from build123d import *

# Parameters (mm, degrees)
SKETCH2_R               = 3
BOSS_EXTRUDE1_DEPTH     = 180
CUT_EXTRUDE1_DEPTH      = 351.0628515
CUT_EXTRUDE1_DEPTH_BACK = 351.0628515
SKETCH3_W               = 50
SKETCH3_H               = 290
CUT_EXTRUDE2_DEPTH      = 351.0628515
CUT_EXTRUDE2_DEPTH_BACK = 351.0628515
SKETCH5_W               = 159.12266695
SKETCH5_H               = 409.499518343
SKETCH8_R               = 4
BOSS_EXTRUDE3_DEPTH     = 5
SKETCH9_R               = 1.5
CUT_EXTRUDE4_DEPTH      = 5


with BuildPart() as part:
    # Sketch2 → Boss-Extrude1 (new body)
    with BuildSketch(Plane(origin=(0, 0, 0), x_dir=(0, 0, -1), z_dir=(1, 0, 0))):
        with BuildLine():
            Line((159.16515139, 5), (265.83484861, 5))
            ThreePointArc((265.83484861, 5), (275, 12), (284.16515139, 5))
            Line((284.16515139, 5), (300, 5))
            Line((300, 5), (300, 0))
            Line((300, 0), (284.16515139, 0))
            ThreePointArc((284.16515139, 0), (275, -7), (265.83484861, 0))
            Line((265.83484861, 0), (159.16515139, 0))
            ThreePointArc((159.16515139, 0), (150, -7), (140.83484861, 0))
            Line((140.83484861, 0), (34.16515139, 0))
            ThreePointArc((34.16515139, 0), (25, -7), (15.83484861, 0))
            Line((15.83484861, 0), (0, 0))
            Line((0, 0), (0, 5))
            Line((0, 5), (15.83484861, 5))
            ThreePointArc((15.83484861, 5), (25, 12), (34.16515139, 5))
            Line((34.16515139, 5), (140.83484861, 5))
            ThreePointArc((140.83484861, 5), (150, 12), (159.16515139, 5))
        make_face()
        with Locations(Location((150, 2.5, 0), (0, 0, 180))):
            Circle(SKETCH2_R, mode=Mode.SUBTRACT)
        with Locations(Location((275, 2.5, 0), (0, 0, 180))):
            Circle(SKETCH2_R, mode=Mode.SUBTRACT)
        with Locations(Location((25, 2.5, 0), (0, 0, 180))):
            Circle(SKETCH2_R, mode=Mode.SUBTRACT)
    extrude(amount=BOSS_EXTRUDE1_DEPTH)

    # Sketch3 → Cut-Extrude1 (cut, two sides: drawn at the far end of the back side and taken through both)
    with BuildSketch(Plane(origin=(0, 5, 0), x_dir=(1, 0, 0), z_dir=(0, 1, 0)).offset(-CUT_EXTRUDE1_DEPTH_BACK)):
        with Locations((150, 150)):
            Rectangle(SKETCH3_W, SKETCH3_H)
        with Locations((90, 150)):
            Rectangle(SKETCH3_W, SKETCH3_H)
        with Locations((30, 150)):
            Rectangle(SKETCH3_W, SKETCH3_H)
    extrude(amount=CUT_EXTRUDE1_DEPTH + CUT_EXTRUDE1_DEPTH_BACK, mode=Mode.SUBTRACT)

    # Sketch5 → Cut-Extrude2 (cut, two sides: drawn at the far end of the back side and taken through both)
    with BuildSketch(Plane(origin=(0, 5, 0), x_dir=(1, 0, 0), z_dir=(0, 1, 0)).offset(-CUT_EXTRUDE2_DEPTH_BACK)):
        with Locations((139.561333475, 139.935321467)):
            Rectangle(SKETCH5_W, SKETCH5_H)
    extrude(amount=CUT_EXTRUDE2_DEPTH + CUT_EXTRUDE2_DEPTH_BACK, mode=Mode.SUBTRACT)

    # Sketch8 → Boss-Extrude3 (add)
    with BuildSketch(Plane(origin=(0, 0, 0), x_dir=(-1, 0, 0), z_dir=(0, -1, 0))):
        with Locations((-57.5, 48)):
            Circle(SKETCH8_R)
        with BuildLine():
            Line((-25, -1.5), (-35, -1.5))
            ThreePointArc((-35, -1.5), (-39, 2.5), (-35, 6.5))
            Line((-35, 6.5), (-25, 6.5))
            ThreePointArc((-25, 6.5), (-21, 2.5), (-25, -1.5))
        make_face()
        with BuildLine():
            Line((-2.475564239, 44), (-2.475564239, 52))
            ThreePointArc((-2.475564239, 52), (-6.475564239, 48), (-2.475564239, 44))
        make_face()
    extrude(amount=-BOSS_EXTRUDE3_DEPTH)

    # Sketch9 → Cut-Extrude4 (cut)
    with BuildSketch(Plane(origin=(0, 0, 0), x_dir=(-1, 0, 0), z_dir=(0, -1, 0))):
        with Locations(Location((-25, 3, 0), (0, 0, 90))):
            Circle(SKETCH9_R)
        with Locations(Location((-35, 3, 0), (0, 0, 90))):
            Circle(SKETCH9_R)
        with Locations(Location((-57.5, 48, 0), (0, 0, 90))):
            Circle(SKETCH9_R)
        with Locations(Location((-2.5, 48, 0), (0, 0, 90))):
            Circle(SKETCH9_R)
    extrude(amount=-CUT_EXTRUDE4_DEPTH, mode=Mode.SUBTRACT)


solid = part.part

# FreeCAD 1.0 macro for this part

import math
import FreeCAD as App
import Part
import Sketcher
Q = App.Units.Quantity

doc = App.newDocument("Part")
params = doc.addObject("Spreadsheet::Sheet", "Params")
for row, (alias, value) in enumerate([
    ("sketch1_diameter", "6 mm"),
    ("sketch1_radius", "9.5 mm"),
    ("sketch1_width", "5 mm"),
    ("pad1_length", "180 mm"),
    ("sketch2_width", "50 mm"),
    ("sketch2_height", "290 mm"),
    ("sketch4_diameter", "8 mm"),
    ("sketch4_width", "10 mm"),
    ("pad2_length", "5 mm"),
    ("sketch5_diameter", "3 mm"),
    ("pocket3_length", "5 mm"),
], start=1):
    params.set(f"A{row}", alias)
    params.set(f"B{row}", "=" + value)
    params.setAlias(f"B{row}", alias)

body = doc.addObject("PartDesign::Body", "Body")

# Sketch on YZ plane
sketch1 = body.newObject("Sketcher::SketchObject", "Sketch")
sketch1.AttachmentSupport = (doc.getObject("YZ_Plane"), [""])
sketch1.MapMode = "FlatFace"
sketch1.addGeometry(Part.LineSegment(App.Vector(5, -265.8, 0), App.Vector(5, -159.2, 0)), False)
sketch1.addGeometry(Part.ArcOfCircle(Part.Circle(App.Vector(2.5, -150, 0), App.Vector(0, 0, 1), 9.5), math.radians(-75), math.radians(75)), False)
sketch1.addGeometry(Part.LineSegment(App.Vector(5, -140.8, 0), App.Vector(5, -34.2, 0)), False)
sketch1.addGeometry(Part.ArcOfCircle(Part.Circle(App.Vector(2.5, -25, 0), App.Vector(0, 0, 1), 9.5), math.radians(-75), math.radians(75)), False)
sketch1.addGeometry(Part.LineSegment(App.Vector(5, -15.8, 0), App.Vector(5, 0, 0)), False)
sketch1.addGeometry(Part.LineSegment(App.Vector(5, 0, 0), App.Vector(0, 0, 0)), False)
sketch1.addGeometry(Part.LineSegment(App.Vector(0, 0, 0), App.Vector(0, -15.8, 0)), False)
sketch1.addGeometry(Part.ArcOfCircle(Part.Circle(App.Vector(2.5, -25, 0), App.Vector(0, 0, 1), 9.5), math.radians(105), math.radians(255)), False)
sketch1.addGeometry(Part.LineSegment(App.Vector(0, -34.2, 0), App.Vector(0, -140.8, 0)), False)
sketch1.addGeometry(Part.ArcOfCircle(Part.Circle(App.Vector(2.5, -150, 0), App.Vector(0, 0, 1), 9.5), math.radians(105), math.radians(255)), False)
sketch1.addGeometry(Part.LineSegment(App.Vector(0, -159.2, 0), App.Vector(0, -265.8, 0)), False)
sketch1.addGeometry(Part.ArcOfCircle(Part.Circle(App.Vector(2.5, -275, 0), App.Vector(0, 0, 1), 9.5), math.radians(105), math.radians(255)), False)
sketch1.addGeometry(Part.LineSegment(App.Vector(0, -284.2, 0), App.Vector(0, -300, 0)), False)
sketch1.addGeometry(Part.LineSegment(App.Vector(0, -300, 0), App.Vector(5, -300, 0)), False)
sketch1.addGeometry(Part.LineSegment(App.Vector(5, -300, 0), App.Vector(5, -284.2, 0)), False)
sketch1.addGeometry(Part.ArcOfCircle(Part.Circle(App.Vector(2.5, -275, 0), App.Vector(0, 0, 1), 9.5), math.radians(-75), math.radians(75)), False)
sketch1.addGeometry(Part.Circle(App.Vector(2.5, -275, 0), App.Vector(0, 0, 1), 3), False)
sketch1.addGeometry(Part.Circle(App.Vector(2.5, -150, 0), App.Vector(0, 0, 1), 3), False)
sketch1.addGeometry(Part.Circle(App.Vector(2.5, -25, 0), App.Vector(0, 0, 1), 3), False)
sketch1.addConstraint(Sketcher.Constraint("Coincident", 0, 2, 1, 1))
sketch1.addConstraint(Sketcher.Constraint("Coincident", 1, 2, 2, 1))
sketch1.addConstraint(Sketcher.Constraint("Coincident", 2, 2, 3, 1))
sketch1.addConstraint(Sketcher.Constraint("Coincident", 3, 2, 4, 1))
sketch1.addConstraint(Sketcher.Constraint("Coincident", 4, 2, 5, 1))
sketch1.addConstraint(Sketcher.Constraint("Coincident", 5, 2, 6, 1))
sketch1.addConstraint(Sketcher.Constraint("Coincident", 6, 2, 7, 1))
sketch1.addConstraint(Sketcher.Constraint("Coincident", 7, 2, 8, 1))
sketch1.addConstraint(Sketcher.Constraint("Coincident", 8, 2, 9, 1))
sketch1.addConstraint(Sketcher.Constraint("Coincident", 9, 2, 10, 1))
sketch1.addConstraint(Sketcher.Constraint("Coincident", 10, 2, 11, 1))
sketch1.addConstraint(Sketcher.Constraint("Coincident", 11, 2, 12, 1))
sketch1.addConstraint(Sketcher.Constraint("Coincident", 12, 2, 13, 1))
sketch1.addConstraint(Sketcher.Constraint("Coincident", 13, 2, 14, 1))
sketch1.addConstraint(Sketcher.Constraint("Coincident", 14, 2, 15, 1))
sketch1.addConstraint(Sketcher.Constraint("Coincident", 15, 2, 0, 1))
sketch1.addConstraint(Sketcher.Constraint("Vertical", 0))
sketch1.addConstraint(Sketcher.Constraint("Vertical", 2))
sketch1.addConstraint(Sketcher.Constraint("Vertical", 4))
sketch1.addConstraint(Sketcher.Constraint("Horizontal", 5))
sketch1.addConstraint(Sketcher.Constraint("Vertical", 6))
sketch1.addConstraint(Sketcher.Constraint("Vertical", 8))
sketch1.addConstraint(Sketcher.Constraint("Vertical", 10))
sketch1.addConstraint(Sketcher.Constraint("Vertical", 12))
sketch1.addConstraint(Sketcher.Constraint("Horizontal", 13))
sketch1.addConstraint(Sketcher.Constraint("Vertical", 14))
sketch1.addConstraint(Sketcher.Constraint("Coincident", 5, 2, -1, 1))
sketch1.addConstraint(Sketcher.Constraint("Coincident", 7, 3, 3, 3))
sketch1.addConstraint(Sketcher.Constraint("Coincident", 9, 3, 1, 3))
sketch1.addConstraint(Sketcher.Constraint("Coincident", 15, 3, 11, 3))
sketch1.addConstraint(Sketcher.Constraint("Coincident", 16, 3, 11, 3))
sketch1.addConstraint(Sketcher.Constraint("Coincident", 17, 3, 1, 3))
sketch1.addConstraint(Sketcher.Constraint("Coincident", 18, 3, 3, 3))
sketch1.addConstraint(Sketcher.Constraint("Equal", 1, 3))
sketch1.addConstraint(Sketcher.Constraint("Equal", 3, 7))
sketch1.addConstraint(Sketcher.Constraint("Equal", 7, 9))
sketch1.addConstraint(Sketcher.Constraint("Equal", 9, 11))
sketch1.addConstraint(Sketcher.Constraint("Equal", 11, 15))
sketch1.addConstraint(Sketcher.Constraint("Equal", 16, 17))
sketch1.addConstraint(Sketcher.Constraint("Equal", 17, 18))
sketch1.addConstraint(Sketcher.Constraint("PointOnObject", 7, 2, -2))
sketch1.addConstraint(Sketcher.Constraint("PointOnObject", 9, 2, -2))
sketch1.addConstraint(Sketcher.Constraint("PointOnObject", 11, 2, -2))
sketch1.addConstraint(Sketcher.Constraint("Horizontal", 3, 2, 6, 2))
sketch1.addConstraint(Sketcher.Constraint("Horizontal", 2, 2, 7, 2))
sketch1.addConstraint(Sketcher.Constraint("Horizontal", 1, 2, 8, 2))
sketch1.addConstraint(Sketcher.Constraint("Horizontal", 0, 2, 9, 2))
sketch1.addConstraint(Sketcher.Constraint("Horizontal", 11, 2, 14, 2))
sketch1.addConstraint(Sketcher.Constraint("Horizontal", 10, 2, 15, 2))
sketch1.addConstraint(Sketcher.Constraint("Equal", 0, 2))
sketch1.addConstraint(Sketcher.Constraint("Equal", 6, 12))
sketch1.addConstraint(Sketcher.Constraint("Diameter", 16, Q("6 mm")))
sketch1.addConstraint(Sketcher.Constraint("Radius", 1, Q("9.5 mm")))
sketch1.addConstraint(Sketcher.Constraint("DistanceX", 5, 2, 5, 1, Q("5 mm")))
sketch1.addConstraint(Sketcher.Constraint("DistanceY", 1, 3, -1, 1, Q("150 mm")))
sketch1.addConstraint(Sketcher.Constraint("DistanceY", 3, 3, -1, 1, Q("25 mm")))
sketch1.setExpression("Constraints[51]", "Params.sketch1_diameter")
sketch1.setExpression("Constraints[52]", "Params.sketch1_radius")
sketch1.setExpression("Constraints[53]", "Params.sketch1_width")
pad1 = body.newObject("PartDesign::Pad", "Pad")
pad1.Profile = sketch1
pad1.setExpression("Length", "Params.pad1_length")

# Sketch on XZ plane
sketch2 = body.newObject("Sketcher::SketchObject", "Sketch001")
sketch2.AttachmentSupport = (doc.getObject("XZ_Plane"), [""])
sketch2.MapMode = "FlatFace"
sketch2.AttachmentOffset = App.Placement(App.Vector(0, 0, -5), App.Rotation())
sketch2.addGeometry(Part.LineSegment(App.Vector(125, -295, 0), App.Vector(125, -5, 0)), False)
sketch2.addGeometry(Part.LineSegment(App.Vector(125, -5, 0), App.Vector(175, -5, 0)), False)
sketch2.addGeometry(Part.LineSegment(App.Vector(175, -5, 0), App.Vector(175, -295, 0)), False)
sketch2.addGeometry(Part.LineSegment(App.Vector(175, -295, 0), App.Vector(125, -295, 0)), False)
sketch2.addGeometry(Part.LineSegment(App.Vector(65, -295, 0), App.Vector(65, -5, 0)), False)
sketch2.addGeometry(Part.LineSegment(App.Vector(65, -5, 0), App.Vector(115, -5, 0)), False)
sketch2.addGeometry(Part.LineSegment(App.Vector(115, -5, 0), App.Vector(115, -295, 0)), False)
sketch2.addGeometry(Part.LineSegment(App.Vector(115, -295, 0), App.Vector(65, -295, 0)), False)
sketch2.addGeometry(Part.LineSegment(App.Vector(5, -295, 0), App.Vector(5, -5, 0)), False)
sketch2.addGeometry(Part.LineSegment(App.Vector(5, -5, 0), App.Vector(55, -5, 0)), False)
sketch2.addGeometry(Part.LineSegment(App.Vector(55, -5, 0), App.Vector(55, -295, 0)), False)
sketch2.addGeometry(Part.LineSegment(App.Vector(55, -295, 0), App.Vector(5, -295, 0)), False)
sketch2.addConstraint(Sketcher.Constraint("Coincident", 0, 2, 1, 1))
sketch2.addConstraint(Sketcher.Constraint("Coincident", 1, 2, 2, 1))
sketch2.addConstraint(Sketcher.Constraint("Coincident", 2, 2, 3, 1))
sketch2.addConstraint(Sketcher.Constraint("Coincident", 3, 2, 0, 1))
sketch2.addConstraint(Sketcher.Constraint("Coincident", 4, 2, 5, 1))
sketch2.addConstraint(Sketcher.Constraint("Coincident", 5, 2, 6, 1))
sketch2.addConstraint(Sketcher.Constraint("Coincident", 6, 2, 7, 1))
sketch2.addConstraint(Sketcher.Constraint("Coincident", 7, 2, 4, 1))
sketch2.addConstraint(Sketcher.Constraint("Coincident", 8, 2, 9, 1))
sketch2.addConstraint(Sketcher.Constraint("Coincident", 9, 2, 10, 1))
sketch2.addConstraint(Sketcher.Constraint("Coincident", 10, 2, 11, 1))
sketch2.addConstraint(Sketcher.Constraint("Coincident", 11, 2, 8, 1))
sketch2.addConstraint(Sketcher.Constraint("Vertical", 0))
sketch2.addConstraint(Sketcher.Constraint("Horizontal", 1))
sketch2.addConstraint(Sketcher.Constraint("Vertical", 2))
sketch2.addConstraint(Sketcher.Constraint("Horizontal", 3))
sketch2.addConstraint(Sketcher.Constraint("Vertical", 4))
sketch2.addConstraint(Sketcher.Constraint("Horizontal", 5))
sketch2.addConstraint(Sketcher.Constraint("Vertical", 6))
sketch2.addConstraint(Sketcher.Constraint("Horizontal", 7))
sketch2.addConstraint(Sketcher.Constraint("Vertical", 8))
sketch2.addConstraint(Sketcher.Constraint("Horizontal", 9))
sketch2.addConstraint(Sketcher.Constraint("Vertical", 10))
sketch2.addConstraint(Sketcher.Constraint("Horizontal", 11))
sketch2.addConstraint(Sketcher.Constraint("Horizontal", 1, 2, 4, 2))
sketch2.addConstraint(Sketcher.Constraint("Horizontal", 3, 2, 6, 2))
sketch2.addConstraint(Sketcher.Constraint("Horizontal", 5, 2, 8, 2))
sketch2.addConstraint(Sketcher.Constraint("Horizontal", 7, 2, 10, 2))
sketch2.addConstraint(Sketcher.Constraint("Equal", 3, 5))
sketch2.addConstraint(Sketcher.Constraint("Equal", 7, 9))
sketch2.addConstraint(Sketcher.Constraint("DistanceX", 1, 1, 1, 2, Q("50 mm")))
sketch2.addConstraint(Sketcher.Constraint("DistanceY", 0, 1, 0, 2, Q("290 mm")))
sketch2.addConstraint(Sketcher.Constraint("DistanceX", -1, 1, 0, 2, Q("125 mm")))
sketch2.addConstraint(Sketcher.Constraint("DistanceY", 0, 2, -1, 1, Q("5 mm")))
sketch2.addConstraint(Sketcher.Constraint("DistanceX", -1, 1, 4, 2, Q("65 mm")))
sketch2.addConstraint(Sketcher.Constraint("DistanceX", -1, 1, 8, 2, Q("5 mm")))
sketch2.setExpression("Constraints[30]", "Params.sketch2_width")
sketch2.setExpression("Constraints[31]", "Params.sketch2_height")
pocket1 = body.newObject("PartDesign::Pocket", "Pocket")
pocket1.Profile = sketch2
pocket1.Type = "ThroughAll"
pocket1.Midplane = True

# Sketch on XZ plane
sketch3 = body.newObject("Sketcher::SketchObject", "Sketch002")
sketch3.AttachmentSupport = (doc.getObject("XZ_Plane"), [""])
sketch3.MapMode = "FlatFace"
sketch3.AttachmentOffset = App.Placement(App.Vector(0, 0, -5), App.Rotation())
sketch3.addGeometry(Part.LineSegment(App.Vector(60, -345, 0), App.Vector(60, 65, 0)), False)
sketch3.addGeometry(Part.LineSegment(App.Vector(60, 65, 0), App.Vector(219, 65, 0)), False)
sketch3.addGeometry(Part.LineSegment(App.Vector(219, 65, 0), App.Vector(219, -345, 0)), False)
sketch3.addGeometry(Part.LineSegment(App.Vector(219, -345, 0), App.Vector(60, -345, 0)), False)
sketch3.addConstraint(Sketcher.Constraint("Coincident", 0, 2, 1, 1))
sketch3.addConstraint(Sketcher.Constraint("Coincident", 1, 2, 2, 1))
sketch3.addConstraint(Sketcher.Constraint("Coincident", 2, 2, 3, 1))
sketch3.addConstraint(Sketcher.Constraint("Coincident", 3, 2, 0, 1))
sketch3.addConstraint(Sketcher.Constraint("Vertical", 0))
sketch3.addConstraint(Sketcher.Constraint("Horizontal", 1))
sketch3.addConstraint(Sketcher.Constraint("Vertical", 2))
sketch3.addConstraint(Sketcher.Constraint("Horizontal", 3))
sketch3.addConstraint(Sketcher.Constraint("DistanceX", -1, 1, 0, 2, Q("60 mm")))
sketch3.addConstraint(Sketcher.Constraint("DistanceY", 0, 1, 0, 2, Q("409.499518 mm")))
sketch3.addConstraint(Sketcher.Constraint("DistanceX", 1, 1, 1, 2, Q("159.122667 mm")))
sketch3.addConstraint(Sketcher.Constraint("DistanceY", 2, 2, -1, 1, Q("344.685081 mm")))
pocket2 = body.newObject("PartDesign::Pocket", "Pocket001")
pocket2.Profile = sketch3
pocket2.Type = "ThroughAll"
pocket2.Midplane = True

# Sketch on XZ plane
sketch4 = body.newObject("Sketcher::SketchObject", "Sketch003")
sketch4.AttachmentSupport = (doc.getObject("XZ_Plane"), [""])
sketch4.MapMode = "FlatFace"
sketch4.addGeometry(Part.Circle(App.Vector(57.5, -48, 0), App.Vector(0, 0, 1), 4), False)
sketch4.addGeometry(Part.LineSegment(App.Vector(35, 1.5, 0), App.Vector(25, 1.5, 0)), False)
sketch4.addGeometry(Part.ArcOfCircle(Part.Circle(App.Vector(25, -2.5, 0), App.Vector(0, 0, 1), 4), math.radians(90), math.radians(270)), False)
sketch4.addGeometry(Part.LineSegment(App.Vector(25, -6.5, 0), App.Vector(35, -6.5, 0)), False)
sketch4.addGeometry(Part.ArcOfCircle(Part.Circle(App.Vector(35, -2.5, 0), App.Vector(0, 0, 1), 4), math.radians(-90), math.radians(90)), False)
sketch4.addGeometry(Part.LineSegment(App.Vector(2.5, -44, 0), App.Vector(2.5, -52, 0)), False)
sketch4.addGeometry(Part.ArcOfCircle(Part.Circle(App.Vector(2.5, -48, 0), App.Vector(0, 0, 1), 4), math.radians(-90), math.radians(90)), False)
sketch4.addConstraint(Sketcher.Constraint("Tangent", 1, 2, 2, 1))
sketch4.addConstraint(Sketcher.Constraint("Tangent", 2, 2, 3, 1))
sketch4.addConstraint(Sketcher.Constraint("Tangent", 3, 2, 4, 1))
sketch4.addConstraint(Sketcher.Constraint("Tangent", 4, 2, 1, 1))
sketch4.addConstraint(Sketcher.Constraint("Coincident", 5, 1, 6, 2))
sketch4.addConstraint(Sketcher.Constraint("Coincident", 6, 1, 5, 2))
sketch4.addConstraint(Sketcher.Constraint("Horizontal", 1))
sketch4.addConstraint(Sketcher.Constraint("Horizontal", 3))
sketch4.addConstraint(Sketcher.Constraint("Vertical", 5))
sketch4.addConstraint(Sketcher.Constraint("Equal", 0, 2))
sketch4.addConstraint(Sketcher.Constraint("Equal", 4, 6))
sketch4.addConstraint(Sketcher.Constraint("Horizontal", 0, 3, 6, 3))
sketch4.addConstraint(Sketcher.Constraint("Vertical", 6, 3, 5, 1))
sketch4.addConstraint(Sketcher.Constraint("Diameter", 0, Q("8 mm")))
sketch4.addConstraint(Sketcher.Constraint("DistanceX", 1, 2, 1, 1, Q("10 mm")))
sketch4.addConstraint(Sketcher.Constraint("DistanceY", 0, 3, -1, 1, Q("48 mm")))
sketch4.addConstraint(Sketcher.Constraint("DistanceX", -1, 1, 2, 3, Q("25 mm")))
sketch4.addConstraint(Sketcher.Constraint("DistanceX", -1, 1, 0, 3, Q("57.5 mm")))
sketch4.addConstraint(Sketcher.Constraint("DistanceY", 2, 3, -1, 1, Q("2.5 mm")))
sketch4.addConstraint(Sketcher.Constraint("DistanceX", -1, 1, 6, 3, Q("2.475564 mm")))
sketch4.setExpression("Constraints[13]", "Params.sketch4_diameter")
sketch4.setExpression("Constraints[14]", "Params.sketch4_width")
pad2 = body.newObject("PartDesign::Pad", "Pad001")
pad2.Profile = sketch4
pad2.setExpression("Length", "Params.pad2_length")
pad2.Reversed = True

# Sketch on XZ plane
sketch5 = body.newObject("Sketcher::SketchObject", "Sketch004")
sketch5.AttachmentSupport = (doc.getObject("XZ_Plane"), [""])
sketch5.MapMode = "FlatFace"
sketch5.addGeometry(Part.Circle(App.Vector(25, -3, 0), App.Vector(0, 0, 1), 1.5), False)
sketch5.addGeometry(Part.Circle(App.Vector(35, -3, 0), App.Vector(0, 0, 1), 1.5), False)
sketch5.addGeometry(Part.Circle(App.Vector(57.5, -48, 0), App.Vector(0, 0, 1), 1.5), False)
sketch5.addGeometry(Part.Circle(App.Vector(2.5, -48, 0), App.Vector(0, 0, 1), 1.5), False)
sketch5.addConstraint(Sketcher.Constraint("Equal", 0, 1))
sketch5.addConstraint(Sketcher.Constraint("Equal", 1, 2))
sketch5.addConstraint(Sketcher.Constraint("Equal", 2, 3))
sketch5.addConstraint(Sketcher.Constraint("Horizontal", 0, 3, 1, 3))
sketch5.addConstraint(Sketcher.Constraint("Horizontal", 2, 3, 3, 3))
sketch5.addConstraint(Sketcher.Constraint("Diameter", 0, Q("3 mm")))
sketch5.addConstraint(Sketcher.Constraint("DistanceX", -1, 1, 0, 3, Q("25 mm")))
sketch5.addConstraint(Sketcher.Constraint("DistanceY", 0, 3, -1, 1, Q("3 mm")))
sketch5.addConstraint(Sketcher.Constraint("DistanceX", -1, 1, 1, 3, Q("35 mm")))
sketch5.addConstraint(Sketcher.Constraint("DistanceY", 2, 3, -1, 1, Q("48 mm")))
sketch5.addConstraint(Sketcher.Constraint("DistanceX", 3, 3, 2, 3, Q("55 mm")))
sketch5.addConstraint(Sketcher.Constraint("DistanceX", -1, 1, 2, 3, Q("57.5 mm")))
sketch5.setExpression("Constraints[5]", "Params.sketch5_diameter")
pocket3 = body.newObject("PartDesign::Pocket", "Pocket002")
pocket3.Profile = sketch5
pocket3.setExpression("Length", "Params.pocket3_length")

doc.recompute()
